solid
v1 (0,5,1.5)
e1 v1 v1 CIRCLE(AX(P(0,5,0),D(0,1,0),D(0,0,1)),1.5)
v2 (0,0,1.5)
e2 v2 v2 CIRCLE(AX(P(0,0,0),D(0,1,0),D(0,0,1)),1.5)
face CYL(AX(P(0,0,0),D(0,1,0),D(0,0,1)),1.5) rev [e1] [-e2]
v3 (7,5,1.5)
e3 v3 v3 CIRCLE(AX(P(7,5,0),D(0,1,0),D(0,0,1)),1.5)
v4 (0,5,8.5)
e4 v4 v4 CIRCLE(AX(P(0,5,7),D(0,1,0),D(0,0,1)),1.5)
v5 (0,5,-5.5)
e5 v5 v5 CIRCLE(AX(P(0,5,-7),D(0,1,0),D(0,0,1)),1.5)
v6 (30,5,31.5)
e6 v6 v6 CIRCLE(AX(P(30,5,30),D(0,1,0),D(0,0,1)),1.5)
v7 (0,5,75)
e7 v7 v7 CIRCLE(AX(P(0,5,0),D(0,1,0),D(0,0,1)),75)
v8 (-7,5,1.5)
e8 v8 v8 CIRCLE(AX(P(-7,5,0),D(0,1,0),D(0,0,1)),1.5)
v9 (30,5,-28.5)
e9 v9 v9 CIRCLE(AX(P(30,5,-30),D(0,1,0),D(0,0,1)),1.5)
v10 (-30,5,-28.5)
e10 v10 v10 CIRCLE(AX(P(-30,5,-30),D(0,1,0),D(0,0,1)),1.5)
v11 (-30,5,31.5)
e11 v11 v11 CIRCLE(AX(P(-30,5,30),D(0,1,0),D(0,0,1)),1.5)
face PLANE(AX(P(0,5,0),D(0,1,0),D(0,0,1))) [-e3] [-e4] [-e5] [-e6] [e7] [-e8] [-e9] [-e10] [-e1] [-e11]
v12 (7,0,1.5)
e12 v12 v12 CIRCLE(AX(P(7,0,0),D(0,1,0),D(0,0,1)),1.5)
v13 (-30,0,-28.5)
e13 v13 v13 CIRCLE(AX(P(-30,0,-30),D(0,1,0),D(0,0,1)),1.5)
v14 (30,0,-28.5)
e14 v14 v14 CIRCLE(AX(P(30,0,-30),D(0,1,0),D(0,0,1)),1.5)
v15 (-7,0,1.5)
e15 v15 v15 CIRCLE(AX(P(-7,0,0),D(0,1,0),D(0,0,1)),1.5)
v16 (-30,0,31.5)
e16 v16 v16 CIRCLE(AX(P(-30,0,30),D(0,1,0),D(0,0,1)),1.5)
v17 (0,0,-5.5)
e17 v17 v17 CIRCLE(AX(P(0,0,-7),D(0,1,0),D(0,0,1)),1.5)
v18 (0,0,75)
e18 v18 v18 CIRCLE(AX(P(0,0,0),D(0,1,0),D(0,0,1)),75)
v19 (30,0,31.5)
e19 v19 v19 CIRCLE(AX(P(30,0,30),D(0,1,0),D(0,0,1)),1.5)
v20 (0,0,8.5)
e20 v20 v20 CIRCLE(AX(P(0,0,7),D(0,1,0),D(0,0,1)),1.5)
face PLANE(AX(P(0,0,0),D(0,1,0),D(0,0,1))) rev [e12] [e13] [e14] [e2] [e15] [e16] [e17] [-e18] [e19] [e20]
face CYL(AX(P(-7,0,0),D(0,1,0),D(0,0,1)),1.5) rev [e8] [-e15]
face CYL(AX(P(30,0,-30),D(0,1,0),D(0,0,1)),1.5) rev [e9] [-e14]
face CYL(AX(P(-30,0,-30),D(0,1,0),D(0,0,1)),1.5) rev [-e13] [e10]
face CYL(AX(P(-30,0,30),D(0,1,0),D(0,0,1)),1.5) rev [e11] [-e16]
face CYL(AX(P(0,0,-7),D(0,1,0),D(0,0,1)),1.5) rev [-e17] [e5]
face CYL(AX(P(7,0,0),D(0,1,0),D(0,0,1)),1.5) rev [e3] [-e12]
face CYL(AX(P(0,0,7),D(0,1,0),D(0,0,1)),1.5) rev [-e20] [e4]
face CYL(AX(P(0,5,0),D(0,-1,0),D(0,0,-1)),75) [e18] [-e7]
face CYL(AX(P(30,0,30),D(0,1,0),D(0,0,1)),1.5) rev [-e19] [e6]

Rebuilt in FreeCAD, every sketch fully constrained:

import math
import FreeCAD as App
import Part
import Sketcher
from FreeCAD import Vector
Q = App.Units.Quantity

doc = App.newDocument("Part")
body = doc.addObject("PartDesign::Body", "Body")

# Sketch on XZ plane
sketch1 = body.newObject("Sketcher::SketchObject", "Sketch")
sketch1.AttachmentSupport = (doc.getObject("XZ_Plane"), [""])
sketch1.MapMode = "FlatFace"
sketch1.addGeometry(Part.Circle(Vector(0, 0, 0), Vector(0, 0, 1), 75), False)
sketch1.addConstraint(Sketcher.Constraint("Coincident", 0, 3, -1, 1))
sketch1.addConstraint(Sketcher.Constraint("Diameter", 0, Q("150 mm")))
pad1 = body.newObject("PartDesign::Pad", "Pad")
pad1.Profile = sketch1
pad1.Length = 5
pad1.Reversed = True

# Sketch on XZ plane
sketch2 = body.newObject("Sketcher::SketchObject", "Sketch001")
sketch2.AttachmentSupport = (doc.getObject("XZ_Plane"), [""])
sketch2.MapMode = "FlatFace"
sketch2.AttachmentOffset = App.Placement(Vector(0, 0, -5), App.Rotation())
sketch2.addGeometry(Part.Circle(Vector(0, 0, 0), Vector(0, 0, 1), 1.5), False)
sketch2.addGeometry(Part.Circle(Vector(7, 0, 0), Vector(0, 0, 1), 1.5), False)
sketch2.addGeometry(Part.Circle(Vector(0, 7, 0), Vector(0, 0, 1), 1.5), False)
sketch2.addGeometry(Part.Circle(Vector(-7, 0, 0), Vector(0, 0, 1), 1.5), False)
sketch2.addGeometry(Part.Circle(Vector(0, -7, 0), Vector(0, 0, 1), 1.5), False)
sketch2.addConstraint(Sketcher.Constraint("Coincident", 0, 3, -1, 1))
sketch2.addConstraint(Sketcher.Constraint("Equal", 0, 1))
sketch2.addConstraint(Sketcher.Constraint("Equal", 1, 2))
sketch2.addConstraint(Sketcher.Constraint("Equal", 2, 3))
sketch2.addConstraint(Sketcher.Constraint("Equal", 3, 4))
sketch2.addConstraint(Sketcher.Constraint("Symmetric", 1, 3, 3, 3, -1, 1))
sketch2.addConstraint(Sketcher.Constraint("Symmetric", 2, 3, 4, 3, -1, 1))
sketch2.addConstraint(Sketcher.Constraint("PointOnObject", 1, 3, -1))
sketch2.addConstraint(Sketcher.Constraint("PointOnObject", 2, 3, -2))
sketch2.addConstraint(Sketcher.Constraint("Diameter", 0, Q("3 mm")))
sketch2.addConstraint(Sketcher.Constraint("DistanceX", -1, 1, 1, 3, Q("7 mm")))
sketch2.addConstraint(Sketcher.Constraint("DistanceY", -1, 1, 2, 3, Q("7 mm")))
pocket1 = body.newObject("PartDesign::Pocket", "Pocket")
pocket1.Profile = sketch2
pocket1.Length = 5
pocket1.Reversed = True

# Sketch on XZ plane
sketch3 = body.newObject("Sketcher::SketchObject", "Sketch002")
sketch3.AttachmentSupport = (doc.getObject("XZ_Plane"), [""])
sketch3.MapMode = "FlatFace"
sketch3.AttachmentOffset = App.Placement(Vector(0, 0, -5), App.Rotation())
sketch3.addGeometry(Part.ArcOfCircle(Part.Circle(Vector(30, -30, 0), Vector(0, 0, 1), 1.5), math.radians(90), math.radians(180)), False)
sketch3.addGeometry(Part.ArcOfCircle(Part.Circle(Vector(30, -30, 0), Vector(0, 0, 1), 1.5), math.radians(0), math.radians(90)), False)
sketch3.addGeometry(Part.ArcOfCircle(Part.Circle(Vector(30, -30, 0), Vector(0, 0, 1), 1.5), math.radians(180), math.radians(360)), False)
sketch3.addGeometry(Part.ArcOfCircle(Part.Circle(Vector(-30, 30, 0), Vector(0, 0, 1), 1.5), math.radians(-90), math.radians(0)), False)
sketch3.addGeometry(Part.ArcOfCircle(Part.Circle(Vector(-30, 30, 0), Vector(0, 0, 1), 1.5), math.radians(0), math.radians(270)), False)
sketch3.addGeometry(Part.ArcOfCircle(Part.Circle(Vector(30, 30, 0), Vector(0, 0, 1), 1.5), math.radians(180), math.radians(270)), False)
sketch3.addGeometry(Part.ArcOfCircle(Part.Circle(Vector(30, 30, 0), Vector(0, 0, 1), 1.5), math.radians(0), math.radians(180)), False)
sketch3.addGeometry(Part.ArcOfCircle(Part.Circle(Vector(30, 30, 0), Vector(0, 0, 1), 1.5), math.radians(-90), math.radians(0)), False)
sketch3.addGeometry(Part.Circle(Vector(-30, -30, 0), Vector(0, 0, 1), 1.5), False)
sketch3.addConstraint(Sketcher.Constraint("Tangent", 0, 1, 1, 2))
sketch3.addConstraint(Sketcher.Constraint("Tangent", 1, 1, 2, 2))
sketch3.addConstraint(Sketcher.Constraint("Tangent", 2, 1, 0, 2))
sketch3.addConstraint(Sketcher.Constraint("Tangent", 3, 1, 4, 2))
sketch3.addConstraint(Sketcher.Constraint("Coincident", 4, 1, 3, 2))
sketch3.addConstraint(Sketcher.Constraint("Tangent", 5, 1, 6, 2))
sketch3.addConstraint(Sketcher.Constraint("Tangent", 6, 1, 7, 2))
sketch3.addConstraint(Sketcher.Constraint("Tangent", 7, 1, 5, 2))
sketch3.addConstraint(Sketcher.Constraint("Equal", 2, 3))
sketch3.addConstraint(Sketcher.Constraint("Equal", 4, 5))
sketch3.addConstraint(Sketcher.Constraint("Equal", 7, 8))
sketch3.addConstraint(Sketcher.Constraint("Symmetric", 0, 3, 3, 3, -1, 1))
sketch3.addConstraint(Sketcher.Constraint("Symmetric", 5, 3, 8, 3, -1, 1))
sketch3.addConstraint(Sketcher.Constraint("Symmetric", 3, 3, 5, 3, -2))
sketch3.addConstraint(Sketcher.Constraint("Horizontal", 8, 3, 1, 1))
sketch3.addConstraint(Sketcher.Constraint("Horizontal", 1, 1, 2, 1))
sketch3.addConstraint(Sketcher.Constraint("Horizontal", 7, 3, 4, 1))
sketch3.addConstraint(Sketcher.Constraint("Horizontal", 4, 1, 5, 1))
sketch3.addConstraint(Sketcher.Constraint("Horizontal", 5, 1, 6, 1))
sketch3.addConstraint(Sketcher.Constraint("Vertical", 7, 3, 0, 1))
sketch3.addConstraint(Sketcher.Constraint("Vertical", 8, 3, 3, 1))
sketch3.addConstraint(Sketcher.Constraint("Vertical", 0, 1, 7, 1))
sketch3.addConstraint(Sketcher.Constraint("Diameter", 8, Q("3 mm")))
sketch3.addConstraint(Sketcher.Constraint("DistanceX", -1, 1, 0, 3, Q("30 mm")))
sketch3.addConstraint(Sketcher.Constraint("DistanceY", 0, 3, -1, 1, Q("30 mm")))
pocket2 = body.newObject("PartDesign::Pocket", "Pocket001")
pocket2.Profile = sketch3
pocket2.Length = 5
pocket2.Reversed = True

doc.recompute()
